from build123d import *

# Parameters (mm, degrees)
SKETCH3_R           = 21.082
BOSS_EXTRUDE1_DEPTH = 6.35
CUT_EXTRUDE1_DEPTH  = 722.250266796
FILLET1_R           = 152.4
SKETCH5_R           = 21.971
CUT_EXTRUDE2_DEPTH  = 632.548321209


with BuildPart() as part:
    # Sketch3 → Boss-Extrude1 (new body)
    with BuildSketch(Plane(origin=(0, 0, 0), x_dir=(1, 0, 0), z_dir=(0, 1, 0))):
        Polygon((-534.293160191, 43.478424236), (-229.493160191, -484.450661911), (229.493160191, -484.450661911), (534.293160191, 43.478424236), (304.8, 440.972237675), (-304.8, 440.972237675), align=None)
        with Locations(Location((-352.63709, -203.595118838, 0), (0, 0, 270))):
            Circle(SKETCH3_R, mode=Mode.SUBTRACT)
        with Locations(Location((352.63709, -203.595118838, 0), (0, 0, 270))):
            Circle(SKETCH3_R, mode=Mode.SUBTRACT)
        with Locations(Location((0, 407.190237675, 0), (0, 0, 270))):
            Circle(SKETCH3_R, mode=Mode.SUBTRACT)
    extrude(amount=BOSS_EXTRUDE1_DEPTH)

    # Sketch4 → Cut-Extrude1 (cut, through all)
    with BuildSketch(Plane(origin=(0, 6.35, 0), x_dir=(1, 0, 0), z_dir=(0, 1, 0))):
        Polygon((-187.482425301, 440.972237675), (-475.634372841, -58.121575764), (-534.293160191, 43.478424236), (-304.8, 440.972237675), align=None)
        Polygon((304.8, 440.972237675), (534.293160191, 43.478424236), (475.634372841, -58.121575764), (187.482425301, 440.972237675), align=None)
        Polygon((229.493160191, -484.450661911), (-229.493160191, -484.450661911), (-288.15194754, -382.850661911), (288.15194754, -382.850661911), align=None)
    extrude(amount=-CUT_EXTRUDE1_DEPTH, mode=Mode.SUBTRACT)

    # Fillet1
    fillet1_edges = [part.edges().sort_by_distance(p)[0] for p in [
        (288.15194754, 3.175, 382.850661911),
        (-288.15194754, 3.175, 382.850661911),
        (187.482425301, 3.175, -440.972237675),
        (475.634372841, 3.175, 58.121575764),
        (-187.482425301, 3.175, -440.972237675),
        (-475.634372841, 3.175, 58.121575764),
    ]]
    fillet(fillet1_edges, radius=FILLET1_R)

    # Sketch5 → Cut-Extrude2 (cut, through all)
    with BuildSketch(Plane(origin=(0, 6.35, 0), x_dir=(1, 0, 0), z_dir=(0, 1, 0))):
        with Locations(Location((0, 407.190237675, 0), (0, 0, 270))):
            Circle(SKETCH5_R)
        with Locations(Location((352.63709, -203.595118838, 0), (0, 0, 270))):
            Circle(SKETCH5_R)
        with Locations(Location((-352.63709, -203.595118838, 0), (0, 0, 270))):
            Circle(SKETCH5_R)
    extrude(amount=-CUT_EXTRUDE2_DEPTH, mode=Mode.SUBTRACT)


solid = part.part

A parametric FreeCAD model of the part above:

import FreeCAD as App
import Part
import Sketcher
from FreeCAD import Vector
Q = App.Units.Quantity


def edges_at(feature, points):
    """Names of the edges that pass closest to the given points."""
    edges = feature.Shape.Edges
    near = lambda p: min(range(len(edges)), key=lambda i: edges[i].distToShape(Part.Vertex(*p))[0])
    return sorted({f"Edge{near(p) + 1}" for p in points})


def add_polygon(sketch, points):
    """Adds a closed chain of lines whose ends are joined by coincident constraints."""
    first, n = sketch.GeometryCount, len(points)
    for a, b in zip(points, points[1:] + points[:1]):
        sketch.addGeometry(Part.LineSegment(App.Vector(*a, 0), App.Vector(*b, 0)), False)
    for i in range(n):
        sketch.addConstraint(Sketcher.Constraint("Coincident", first + i, 2, first + (i + 1) % n, 1))

doc = App.newDocument("Part")
body = doc.addObject("PartDesign::Body", "Body")

# Sketch on XZ plane
sketch1 = body.newObject("Sketcher::SketchObject", "Sketch")
sketch1.AttachmentSupport = (doc.getObject("XZ_Plane"), [""])
sketch1.MapMode = "FlatFace"
add_polygon(sketch1, [(-534.29316, -43.478424), (-229.49316, 484.450662), (229.49316, 484.450662), (534.29316, -43.478424), (304.8, -440.972238), (-304.8, -440.972238)])  # lines 0-5
sketch1.addGeometry(Part.Circle(Vector(-352.63709, 203.595119, 0), Vector(0, 0, 1), 21.082), False)  # 6
sketch1.addGeometry(Part.Circle(Vector(352.63709, 203.595119, 0), Vector(0, 0, 1), 21.082), False)  # 7
sketch1.addGeometry(Part.Circle(Vector(0, -407.190238, 0), Vector(0, 0, 1), 21.082), False)  # 8
sketch1.addConstraint(Sketcher.Constraint("Horizontal", 1))
sketch1.addConstraint(Sketcher.Constraint("Horizontal", 4))
sketch1.addConstraint(Sketcher.Constraint("Equal", 6, 7))
sketch1.addConstraint(Sketcher.Constraint("Equal", 7, 8))
sketch1.addConstraint(Sketcher.Constraint("Symmetric", 6, 3, 7, 3, -2))
sketch1.addConstraint(Sketcher.Constraint("Symmetric", 2, 2, 5, 2, -2))
sketch1.addConstraint(Sketcher.Constraint("PointOnObject", 8, 3, -2))
sketch1.addConstraint(Sketcher.Constraint("Parallel", 0, 3))
sketch1.addConstraint(Sketcher.Constraint("Parallel", 2, 5))
sketch1.addConstraint(Sketcher.Constraint("Equal", 0, 2))
sketch1.addConstraint(Sketcher.Constraint("Diameter", 6, Q("1.66 in")))
sketch1.addConstraint(Sketcher.Constraint("DistanceX", 4, 2, 4, 1, Q("24 in")))
sketch1.addConstraint(Sketcher.Constraint("Distance", 0, Q("24 in")))
sketch1.addConstraint(Sketcher.Constraint("Angle", 0, Q("60 deg")))
sketch1.addConstraint(Sketcher.Constraint("DistanceY", 3, 2, 8, 3, Q("1.33 in")))
sketch1.addConstraint(Sketcher.Constraint("DistanceX", 6, 3, 7, 3, Q("27.7667 in")))
sketch1.addConstraint(Sketcher.Constraint("DistanceX", 1, 1, 1, 2, Q("458.98632 mm")))
sketch1.addConstraint(Sketcher.Constraint("DistanceY", -1, 1, 6, 3, Q("203.595119 mm")))
sketch1.addConstraint(Sketcher.Constraint("DistanceY", -1, 1, 0, 2, Q("484.450662 mm")))
pad1 = body.newObject("PartDesign::Pad", "Pad")
pad1.Profile = sketch1
pad1.Length = Q("0.25 in")
pad1.Reversed = True

# Sketch on XZ plane
sketch2 = body.newObject("Sketcher::SketchObject", "Sketch001")
sketch2.AttachmentSupport = (doc.getObject("XZ_Plane"), [""])
sketch2.MapMode = "FlatFace"
sketch2.AttachmentOffset = App.Placement(Vector(0, 0, -0.25 * 25.4), App.Rotation())
add_polygon(sketch2, [(-475.634373, 58.121576), (-187.482425, -440.972238), (-304.8, -440.972238), (-534.29316, -43.478424)])  # lines 0-3
add_polygon(sketch2, [(534.29316, -43.478424), (304.8, -440.972238), (187.482425, -440.972238), (475.634373, 58.121576)])  # lines 4-7
add_polygon(sketch2, [(-229.49316, 484.450662), (229.49316, 484.450662), (288.151948, 382.850662), (-288.151948, 382.850662)])  # lines 8-11
sketch2.addConstraint(Sketcher.Constraint("Horizontal", 1))
sketch2.addConstraint(Sketcher.Constraint("Horizontal", 5))
sketch2.addConstraint(Sketcher.Constraint("Horizontal", 8))
sketch2.addConstraint(Sketcher.Constraint("Horizontal", 10))
sketch2.addConstraint(Sketcher.Constraint("Symmetric", 1, 2, 4, 2, -2))
sketch2.addConstraint(Sketcher.Constraint("Symmetric", 3, 2, 6, 2, -2))
sketch2.addConstraint(Sketcher.Constraint("Symmetric", 2, 2, 7, 2, -2))
sketch2.addConstraint(Sketcher.Constraint("Parallel", 0, 2))
sketch2.addConstraint(Sketcher.Constraint("Parallel", 3, 4))
sketch2.addConstraint(Sketcher.Constraint("Parallel", 4, 6))
sketch2.addConstraint(Sketcher.Constraint("Parallel", 7, 9))
sketch2.addConstraint(Sketcher.Constraint("Parallel", 6, 11))
sketch2.addConstraint(Sketcher.Constraint("Equal", 7, 9))
sketch2.addConstraint(Sketcher.Constraint("DistanceX", 1, 2, -1, 1, Q("12 in")))
sketch2.addConstraint(Sketcher.Constraint("Angle", 0, Q("-60 deg")))
sketch2.addConstraint(Sketcher.Constraint("DistanceY", 2, 2, 3, 2, Q("4 in")))
sketch2.addConstraint(Sketcher.Constraint("DistanceX", 8, 2, 7, 2, Q("12 in")))
sketch2.addConstraint(Sketcher.Constraint("DistanceX", 2, 2, 11, 2, Q("12 in")))
sketch2.addConstraint(Sketcher.Constraint("DistanceX", 8, 1, 8, 2, Q("458.98632 mm")))
sketch2.addConstraint(Sketcher.Constraint("DistanceY", 5, 2, 8, 2, Q("925.4229 mm")))
sketch2.addConstraint(Sketcher.Constraint("DistanceY", -1, 1, 8, 2, Q("484.450662 mm")))
pocket1 = body.newObject("PartDesign::Pocket", "Pocket")
pocket1.Profile = sketch2
pocket1.Type = "ThroughAll"
pocket1.Reversed = True
doc.recompute()

fillet = body.newObject("PartDesign::Fillet", "Fillet")
fillet.Base = (pocket1, edges_at(pocket1, [
    (288.152, 3.175, 382.851),
    (-288.152, 3.175, 382.851),
    (187.482, 3.175, -440.972),
    (475.634, 3.175, 58.122),
    (-187.482, 3.175, -440.972),
    (-475.634, 3.175, 58.122),
]))
fillet.Radius = Q("6 in")

# Sketch on XZ plane
sketch3 = body.newObject("Sketcher::SketchObject", "Sketch002")
sketch3.AttachmentSupport = (doc.getObject("XZ_Plane"), [""])
sketch3.MapMode = "FlatFace"
sketch3.AttachmentOffset = App.Placement(Vector(0, 0, -0.25 * 25.4), App.Rotation())
sketch3.addGeometry(Part.Circle(Vector(0, -407.190238, 0), Vector(0, 0, 1), 21.971), False)
sketch3.addGeometry(Part.Circle(Vector(352.63709, 203.595119, 0), Vector(0, 0, 1), 21.971), False)
sketch3.addGeometry(Part.Circle(Vector(-352.63709, 203.595119, 0), Vector(0, 0, 1), 21.971), False)
sketch3.addConstraint(Sketcher.Constraint("Equal", 0, 1))
sketch3.addConstraint(Sketcher.Constraint("Equal", 1, 2))
sketch3.addConstraint(Sketcher.Constraint("Symmetric", 1, 3, 2, 3, -2))
sketch3.addConstraint(Sketcher.Constraint("PointOnObject", 0, 3, -2))
sketch3.addConstraint(Sketcher.Constraint("Diameter", 0, Q("1.73 in")))
sketch3.addConstraint(Sketcher.Constraint("DistanceX", 2, 3, 1, 3, Q("27.7667 in")))
sketch3.addConstraint(Sketcher.Constraint("DistanceY", -1, 1, 1, 3, Q("203.595119 mm")))
sketch3.addConstraint(Sketcher.Constraint("DistanceY", 0, 3, -1, 1, Q("407.190238 mm")))
pocket2 = body.newObject("PartDesign::Pocket", "Pocket001")
pocket2.Profile = sketch3
pocket2.Type = "ThroughAll"
pocket2.Reversed = True

doc.recompute()
